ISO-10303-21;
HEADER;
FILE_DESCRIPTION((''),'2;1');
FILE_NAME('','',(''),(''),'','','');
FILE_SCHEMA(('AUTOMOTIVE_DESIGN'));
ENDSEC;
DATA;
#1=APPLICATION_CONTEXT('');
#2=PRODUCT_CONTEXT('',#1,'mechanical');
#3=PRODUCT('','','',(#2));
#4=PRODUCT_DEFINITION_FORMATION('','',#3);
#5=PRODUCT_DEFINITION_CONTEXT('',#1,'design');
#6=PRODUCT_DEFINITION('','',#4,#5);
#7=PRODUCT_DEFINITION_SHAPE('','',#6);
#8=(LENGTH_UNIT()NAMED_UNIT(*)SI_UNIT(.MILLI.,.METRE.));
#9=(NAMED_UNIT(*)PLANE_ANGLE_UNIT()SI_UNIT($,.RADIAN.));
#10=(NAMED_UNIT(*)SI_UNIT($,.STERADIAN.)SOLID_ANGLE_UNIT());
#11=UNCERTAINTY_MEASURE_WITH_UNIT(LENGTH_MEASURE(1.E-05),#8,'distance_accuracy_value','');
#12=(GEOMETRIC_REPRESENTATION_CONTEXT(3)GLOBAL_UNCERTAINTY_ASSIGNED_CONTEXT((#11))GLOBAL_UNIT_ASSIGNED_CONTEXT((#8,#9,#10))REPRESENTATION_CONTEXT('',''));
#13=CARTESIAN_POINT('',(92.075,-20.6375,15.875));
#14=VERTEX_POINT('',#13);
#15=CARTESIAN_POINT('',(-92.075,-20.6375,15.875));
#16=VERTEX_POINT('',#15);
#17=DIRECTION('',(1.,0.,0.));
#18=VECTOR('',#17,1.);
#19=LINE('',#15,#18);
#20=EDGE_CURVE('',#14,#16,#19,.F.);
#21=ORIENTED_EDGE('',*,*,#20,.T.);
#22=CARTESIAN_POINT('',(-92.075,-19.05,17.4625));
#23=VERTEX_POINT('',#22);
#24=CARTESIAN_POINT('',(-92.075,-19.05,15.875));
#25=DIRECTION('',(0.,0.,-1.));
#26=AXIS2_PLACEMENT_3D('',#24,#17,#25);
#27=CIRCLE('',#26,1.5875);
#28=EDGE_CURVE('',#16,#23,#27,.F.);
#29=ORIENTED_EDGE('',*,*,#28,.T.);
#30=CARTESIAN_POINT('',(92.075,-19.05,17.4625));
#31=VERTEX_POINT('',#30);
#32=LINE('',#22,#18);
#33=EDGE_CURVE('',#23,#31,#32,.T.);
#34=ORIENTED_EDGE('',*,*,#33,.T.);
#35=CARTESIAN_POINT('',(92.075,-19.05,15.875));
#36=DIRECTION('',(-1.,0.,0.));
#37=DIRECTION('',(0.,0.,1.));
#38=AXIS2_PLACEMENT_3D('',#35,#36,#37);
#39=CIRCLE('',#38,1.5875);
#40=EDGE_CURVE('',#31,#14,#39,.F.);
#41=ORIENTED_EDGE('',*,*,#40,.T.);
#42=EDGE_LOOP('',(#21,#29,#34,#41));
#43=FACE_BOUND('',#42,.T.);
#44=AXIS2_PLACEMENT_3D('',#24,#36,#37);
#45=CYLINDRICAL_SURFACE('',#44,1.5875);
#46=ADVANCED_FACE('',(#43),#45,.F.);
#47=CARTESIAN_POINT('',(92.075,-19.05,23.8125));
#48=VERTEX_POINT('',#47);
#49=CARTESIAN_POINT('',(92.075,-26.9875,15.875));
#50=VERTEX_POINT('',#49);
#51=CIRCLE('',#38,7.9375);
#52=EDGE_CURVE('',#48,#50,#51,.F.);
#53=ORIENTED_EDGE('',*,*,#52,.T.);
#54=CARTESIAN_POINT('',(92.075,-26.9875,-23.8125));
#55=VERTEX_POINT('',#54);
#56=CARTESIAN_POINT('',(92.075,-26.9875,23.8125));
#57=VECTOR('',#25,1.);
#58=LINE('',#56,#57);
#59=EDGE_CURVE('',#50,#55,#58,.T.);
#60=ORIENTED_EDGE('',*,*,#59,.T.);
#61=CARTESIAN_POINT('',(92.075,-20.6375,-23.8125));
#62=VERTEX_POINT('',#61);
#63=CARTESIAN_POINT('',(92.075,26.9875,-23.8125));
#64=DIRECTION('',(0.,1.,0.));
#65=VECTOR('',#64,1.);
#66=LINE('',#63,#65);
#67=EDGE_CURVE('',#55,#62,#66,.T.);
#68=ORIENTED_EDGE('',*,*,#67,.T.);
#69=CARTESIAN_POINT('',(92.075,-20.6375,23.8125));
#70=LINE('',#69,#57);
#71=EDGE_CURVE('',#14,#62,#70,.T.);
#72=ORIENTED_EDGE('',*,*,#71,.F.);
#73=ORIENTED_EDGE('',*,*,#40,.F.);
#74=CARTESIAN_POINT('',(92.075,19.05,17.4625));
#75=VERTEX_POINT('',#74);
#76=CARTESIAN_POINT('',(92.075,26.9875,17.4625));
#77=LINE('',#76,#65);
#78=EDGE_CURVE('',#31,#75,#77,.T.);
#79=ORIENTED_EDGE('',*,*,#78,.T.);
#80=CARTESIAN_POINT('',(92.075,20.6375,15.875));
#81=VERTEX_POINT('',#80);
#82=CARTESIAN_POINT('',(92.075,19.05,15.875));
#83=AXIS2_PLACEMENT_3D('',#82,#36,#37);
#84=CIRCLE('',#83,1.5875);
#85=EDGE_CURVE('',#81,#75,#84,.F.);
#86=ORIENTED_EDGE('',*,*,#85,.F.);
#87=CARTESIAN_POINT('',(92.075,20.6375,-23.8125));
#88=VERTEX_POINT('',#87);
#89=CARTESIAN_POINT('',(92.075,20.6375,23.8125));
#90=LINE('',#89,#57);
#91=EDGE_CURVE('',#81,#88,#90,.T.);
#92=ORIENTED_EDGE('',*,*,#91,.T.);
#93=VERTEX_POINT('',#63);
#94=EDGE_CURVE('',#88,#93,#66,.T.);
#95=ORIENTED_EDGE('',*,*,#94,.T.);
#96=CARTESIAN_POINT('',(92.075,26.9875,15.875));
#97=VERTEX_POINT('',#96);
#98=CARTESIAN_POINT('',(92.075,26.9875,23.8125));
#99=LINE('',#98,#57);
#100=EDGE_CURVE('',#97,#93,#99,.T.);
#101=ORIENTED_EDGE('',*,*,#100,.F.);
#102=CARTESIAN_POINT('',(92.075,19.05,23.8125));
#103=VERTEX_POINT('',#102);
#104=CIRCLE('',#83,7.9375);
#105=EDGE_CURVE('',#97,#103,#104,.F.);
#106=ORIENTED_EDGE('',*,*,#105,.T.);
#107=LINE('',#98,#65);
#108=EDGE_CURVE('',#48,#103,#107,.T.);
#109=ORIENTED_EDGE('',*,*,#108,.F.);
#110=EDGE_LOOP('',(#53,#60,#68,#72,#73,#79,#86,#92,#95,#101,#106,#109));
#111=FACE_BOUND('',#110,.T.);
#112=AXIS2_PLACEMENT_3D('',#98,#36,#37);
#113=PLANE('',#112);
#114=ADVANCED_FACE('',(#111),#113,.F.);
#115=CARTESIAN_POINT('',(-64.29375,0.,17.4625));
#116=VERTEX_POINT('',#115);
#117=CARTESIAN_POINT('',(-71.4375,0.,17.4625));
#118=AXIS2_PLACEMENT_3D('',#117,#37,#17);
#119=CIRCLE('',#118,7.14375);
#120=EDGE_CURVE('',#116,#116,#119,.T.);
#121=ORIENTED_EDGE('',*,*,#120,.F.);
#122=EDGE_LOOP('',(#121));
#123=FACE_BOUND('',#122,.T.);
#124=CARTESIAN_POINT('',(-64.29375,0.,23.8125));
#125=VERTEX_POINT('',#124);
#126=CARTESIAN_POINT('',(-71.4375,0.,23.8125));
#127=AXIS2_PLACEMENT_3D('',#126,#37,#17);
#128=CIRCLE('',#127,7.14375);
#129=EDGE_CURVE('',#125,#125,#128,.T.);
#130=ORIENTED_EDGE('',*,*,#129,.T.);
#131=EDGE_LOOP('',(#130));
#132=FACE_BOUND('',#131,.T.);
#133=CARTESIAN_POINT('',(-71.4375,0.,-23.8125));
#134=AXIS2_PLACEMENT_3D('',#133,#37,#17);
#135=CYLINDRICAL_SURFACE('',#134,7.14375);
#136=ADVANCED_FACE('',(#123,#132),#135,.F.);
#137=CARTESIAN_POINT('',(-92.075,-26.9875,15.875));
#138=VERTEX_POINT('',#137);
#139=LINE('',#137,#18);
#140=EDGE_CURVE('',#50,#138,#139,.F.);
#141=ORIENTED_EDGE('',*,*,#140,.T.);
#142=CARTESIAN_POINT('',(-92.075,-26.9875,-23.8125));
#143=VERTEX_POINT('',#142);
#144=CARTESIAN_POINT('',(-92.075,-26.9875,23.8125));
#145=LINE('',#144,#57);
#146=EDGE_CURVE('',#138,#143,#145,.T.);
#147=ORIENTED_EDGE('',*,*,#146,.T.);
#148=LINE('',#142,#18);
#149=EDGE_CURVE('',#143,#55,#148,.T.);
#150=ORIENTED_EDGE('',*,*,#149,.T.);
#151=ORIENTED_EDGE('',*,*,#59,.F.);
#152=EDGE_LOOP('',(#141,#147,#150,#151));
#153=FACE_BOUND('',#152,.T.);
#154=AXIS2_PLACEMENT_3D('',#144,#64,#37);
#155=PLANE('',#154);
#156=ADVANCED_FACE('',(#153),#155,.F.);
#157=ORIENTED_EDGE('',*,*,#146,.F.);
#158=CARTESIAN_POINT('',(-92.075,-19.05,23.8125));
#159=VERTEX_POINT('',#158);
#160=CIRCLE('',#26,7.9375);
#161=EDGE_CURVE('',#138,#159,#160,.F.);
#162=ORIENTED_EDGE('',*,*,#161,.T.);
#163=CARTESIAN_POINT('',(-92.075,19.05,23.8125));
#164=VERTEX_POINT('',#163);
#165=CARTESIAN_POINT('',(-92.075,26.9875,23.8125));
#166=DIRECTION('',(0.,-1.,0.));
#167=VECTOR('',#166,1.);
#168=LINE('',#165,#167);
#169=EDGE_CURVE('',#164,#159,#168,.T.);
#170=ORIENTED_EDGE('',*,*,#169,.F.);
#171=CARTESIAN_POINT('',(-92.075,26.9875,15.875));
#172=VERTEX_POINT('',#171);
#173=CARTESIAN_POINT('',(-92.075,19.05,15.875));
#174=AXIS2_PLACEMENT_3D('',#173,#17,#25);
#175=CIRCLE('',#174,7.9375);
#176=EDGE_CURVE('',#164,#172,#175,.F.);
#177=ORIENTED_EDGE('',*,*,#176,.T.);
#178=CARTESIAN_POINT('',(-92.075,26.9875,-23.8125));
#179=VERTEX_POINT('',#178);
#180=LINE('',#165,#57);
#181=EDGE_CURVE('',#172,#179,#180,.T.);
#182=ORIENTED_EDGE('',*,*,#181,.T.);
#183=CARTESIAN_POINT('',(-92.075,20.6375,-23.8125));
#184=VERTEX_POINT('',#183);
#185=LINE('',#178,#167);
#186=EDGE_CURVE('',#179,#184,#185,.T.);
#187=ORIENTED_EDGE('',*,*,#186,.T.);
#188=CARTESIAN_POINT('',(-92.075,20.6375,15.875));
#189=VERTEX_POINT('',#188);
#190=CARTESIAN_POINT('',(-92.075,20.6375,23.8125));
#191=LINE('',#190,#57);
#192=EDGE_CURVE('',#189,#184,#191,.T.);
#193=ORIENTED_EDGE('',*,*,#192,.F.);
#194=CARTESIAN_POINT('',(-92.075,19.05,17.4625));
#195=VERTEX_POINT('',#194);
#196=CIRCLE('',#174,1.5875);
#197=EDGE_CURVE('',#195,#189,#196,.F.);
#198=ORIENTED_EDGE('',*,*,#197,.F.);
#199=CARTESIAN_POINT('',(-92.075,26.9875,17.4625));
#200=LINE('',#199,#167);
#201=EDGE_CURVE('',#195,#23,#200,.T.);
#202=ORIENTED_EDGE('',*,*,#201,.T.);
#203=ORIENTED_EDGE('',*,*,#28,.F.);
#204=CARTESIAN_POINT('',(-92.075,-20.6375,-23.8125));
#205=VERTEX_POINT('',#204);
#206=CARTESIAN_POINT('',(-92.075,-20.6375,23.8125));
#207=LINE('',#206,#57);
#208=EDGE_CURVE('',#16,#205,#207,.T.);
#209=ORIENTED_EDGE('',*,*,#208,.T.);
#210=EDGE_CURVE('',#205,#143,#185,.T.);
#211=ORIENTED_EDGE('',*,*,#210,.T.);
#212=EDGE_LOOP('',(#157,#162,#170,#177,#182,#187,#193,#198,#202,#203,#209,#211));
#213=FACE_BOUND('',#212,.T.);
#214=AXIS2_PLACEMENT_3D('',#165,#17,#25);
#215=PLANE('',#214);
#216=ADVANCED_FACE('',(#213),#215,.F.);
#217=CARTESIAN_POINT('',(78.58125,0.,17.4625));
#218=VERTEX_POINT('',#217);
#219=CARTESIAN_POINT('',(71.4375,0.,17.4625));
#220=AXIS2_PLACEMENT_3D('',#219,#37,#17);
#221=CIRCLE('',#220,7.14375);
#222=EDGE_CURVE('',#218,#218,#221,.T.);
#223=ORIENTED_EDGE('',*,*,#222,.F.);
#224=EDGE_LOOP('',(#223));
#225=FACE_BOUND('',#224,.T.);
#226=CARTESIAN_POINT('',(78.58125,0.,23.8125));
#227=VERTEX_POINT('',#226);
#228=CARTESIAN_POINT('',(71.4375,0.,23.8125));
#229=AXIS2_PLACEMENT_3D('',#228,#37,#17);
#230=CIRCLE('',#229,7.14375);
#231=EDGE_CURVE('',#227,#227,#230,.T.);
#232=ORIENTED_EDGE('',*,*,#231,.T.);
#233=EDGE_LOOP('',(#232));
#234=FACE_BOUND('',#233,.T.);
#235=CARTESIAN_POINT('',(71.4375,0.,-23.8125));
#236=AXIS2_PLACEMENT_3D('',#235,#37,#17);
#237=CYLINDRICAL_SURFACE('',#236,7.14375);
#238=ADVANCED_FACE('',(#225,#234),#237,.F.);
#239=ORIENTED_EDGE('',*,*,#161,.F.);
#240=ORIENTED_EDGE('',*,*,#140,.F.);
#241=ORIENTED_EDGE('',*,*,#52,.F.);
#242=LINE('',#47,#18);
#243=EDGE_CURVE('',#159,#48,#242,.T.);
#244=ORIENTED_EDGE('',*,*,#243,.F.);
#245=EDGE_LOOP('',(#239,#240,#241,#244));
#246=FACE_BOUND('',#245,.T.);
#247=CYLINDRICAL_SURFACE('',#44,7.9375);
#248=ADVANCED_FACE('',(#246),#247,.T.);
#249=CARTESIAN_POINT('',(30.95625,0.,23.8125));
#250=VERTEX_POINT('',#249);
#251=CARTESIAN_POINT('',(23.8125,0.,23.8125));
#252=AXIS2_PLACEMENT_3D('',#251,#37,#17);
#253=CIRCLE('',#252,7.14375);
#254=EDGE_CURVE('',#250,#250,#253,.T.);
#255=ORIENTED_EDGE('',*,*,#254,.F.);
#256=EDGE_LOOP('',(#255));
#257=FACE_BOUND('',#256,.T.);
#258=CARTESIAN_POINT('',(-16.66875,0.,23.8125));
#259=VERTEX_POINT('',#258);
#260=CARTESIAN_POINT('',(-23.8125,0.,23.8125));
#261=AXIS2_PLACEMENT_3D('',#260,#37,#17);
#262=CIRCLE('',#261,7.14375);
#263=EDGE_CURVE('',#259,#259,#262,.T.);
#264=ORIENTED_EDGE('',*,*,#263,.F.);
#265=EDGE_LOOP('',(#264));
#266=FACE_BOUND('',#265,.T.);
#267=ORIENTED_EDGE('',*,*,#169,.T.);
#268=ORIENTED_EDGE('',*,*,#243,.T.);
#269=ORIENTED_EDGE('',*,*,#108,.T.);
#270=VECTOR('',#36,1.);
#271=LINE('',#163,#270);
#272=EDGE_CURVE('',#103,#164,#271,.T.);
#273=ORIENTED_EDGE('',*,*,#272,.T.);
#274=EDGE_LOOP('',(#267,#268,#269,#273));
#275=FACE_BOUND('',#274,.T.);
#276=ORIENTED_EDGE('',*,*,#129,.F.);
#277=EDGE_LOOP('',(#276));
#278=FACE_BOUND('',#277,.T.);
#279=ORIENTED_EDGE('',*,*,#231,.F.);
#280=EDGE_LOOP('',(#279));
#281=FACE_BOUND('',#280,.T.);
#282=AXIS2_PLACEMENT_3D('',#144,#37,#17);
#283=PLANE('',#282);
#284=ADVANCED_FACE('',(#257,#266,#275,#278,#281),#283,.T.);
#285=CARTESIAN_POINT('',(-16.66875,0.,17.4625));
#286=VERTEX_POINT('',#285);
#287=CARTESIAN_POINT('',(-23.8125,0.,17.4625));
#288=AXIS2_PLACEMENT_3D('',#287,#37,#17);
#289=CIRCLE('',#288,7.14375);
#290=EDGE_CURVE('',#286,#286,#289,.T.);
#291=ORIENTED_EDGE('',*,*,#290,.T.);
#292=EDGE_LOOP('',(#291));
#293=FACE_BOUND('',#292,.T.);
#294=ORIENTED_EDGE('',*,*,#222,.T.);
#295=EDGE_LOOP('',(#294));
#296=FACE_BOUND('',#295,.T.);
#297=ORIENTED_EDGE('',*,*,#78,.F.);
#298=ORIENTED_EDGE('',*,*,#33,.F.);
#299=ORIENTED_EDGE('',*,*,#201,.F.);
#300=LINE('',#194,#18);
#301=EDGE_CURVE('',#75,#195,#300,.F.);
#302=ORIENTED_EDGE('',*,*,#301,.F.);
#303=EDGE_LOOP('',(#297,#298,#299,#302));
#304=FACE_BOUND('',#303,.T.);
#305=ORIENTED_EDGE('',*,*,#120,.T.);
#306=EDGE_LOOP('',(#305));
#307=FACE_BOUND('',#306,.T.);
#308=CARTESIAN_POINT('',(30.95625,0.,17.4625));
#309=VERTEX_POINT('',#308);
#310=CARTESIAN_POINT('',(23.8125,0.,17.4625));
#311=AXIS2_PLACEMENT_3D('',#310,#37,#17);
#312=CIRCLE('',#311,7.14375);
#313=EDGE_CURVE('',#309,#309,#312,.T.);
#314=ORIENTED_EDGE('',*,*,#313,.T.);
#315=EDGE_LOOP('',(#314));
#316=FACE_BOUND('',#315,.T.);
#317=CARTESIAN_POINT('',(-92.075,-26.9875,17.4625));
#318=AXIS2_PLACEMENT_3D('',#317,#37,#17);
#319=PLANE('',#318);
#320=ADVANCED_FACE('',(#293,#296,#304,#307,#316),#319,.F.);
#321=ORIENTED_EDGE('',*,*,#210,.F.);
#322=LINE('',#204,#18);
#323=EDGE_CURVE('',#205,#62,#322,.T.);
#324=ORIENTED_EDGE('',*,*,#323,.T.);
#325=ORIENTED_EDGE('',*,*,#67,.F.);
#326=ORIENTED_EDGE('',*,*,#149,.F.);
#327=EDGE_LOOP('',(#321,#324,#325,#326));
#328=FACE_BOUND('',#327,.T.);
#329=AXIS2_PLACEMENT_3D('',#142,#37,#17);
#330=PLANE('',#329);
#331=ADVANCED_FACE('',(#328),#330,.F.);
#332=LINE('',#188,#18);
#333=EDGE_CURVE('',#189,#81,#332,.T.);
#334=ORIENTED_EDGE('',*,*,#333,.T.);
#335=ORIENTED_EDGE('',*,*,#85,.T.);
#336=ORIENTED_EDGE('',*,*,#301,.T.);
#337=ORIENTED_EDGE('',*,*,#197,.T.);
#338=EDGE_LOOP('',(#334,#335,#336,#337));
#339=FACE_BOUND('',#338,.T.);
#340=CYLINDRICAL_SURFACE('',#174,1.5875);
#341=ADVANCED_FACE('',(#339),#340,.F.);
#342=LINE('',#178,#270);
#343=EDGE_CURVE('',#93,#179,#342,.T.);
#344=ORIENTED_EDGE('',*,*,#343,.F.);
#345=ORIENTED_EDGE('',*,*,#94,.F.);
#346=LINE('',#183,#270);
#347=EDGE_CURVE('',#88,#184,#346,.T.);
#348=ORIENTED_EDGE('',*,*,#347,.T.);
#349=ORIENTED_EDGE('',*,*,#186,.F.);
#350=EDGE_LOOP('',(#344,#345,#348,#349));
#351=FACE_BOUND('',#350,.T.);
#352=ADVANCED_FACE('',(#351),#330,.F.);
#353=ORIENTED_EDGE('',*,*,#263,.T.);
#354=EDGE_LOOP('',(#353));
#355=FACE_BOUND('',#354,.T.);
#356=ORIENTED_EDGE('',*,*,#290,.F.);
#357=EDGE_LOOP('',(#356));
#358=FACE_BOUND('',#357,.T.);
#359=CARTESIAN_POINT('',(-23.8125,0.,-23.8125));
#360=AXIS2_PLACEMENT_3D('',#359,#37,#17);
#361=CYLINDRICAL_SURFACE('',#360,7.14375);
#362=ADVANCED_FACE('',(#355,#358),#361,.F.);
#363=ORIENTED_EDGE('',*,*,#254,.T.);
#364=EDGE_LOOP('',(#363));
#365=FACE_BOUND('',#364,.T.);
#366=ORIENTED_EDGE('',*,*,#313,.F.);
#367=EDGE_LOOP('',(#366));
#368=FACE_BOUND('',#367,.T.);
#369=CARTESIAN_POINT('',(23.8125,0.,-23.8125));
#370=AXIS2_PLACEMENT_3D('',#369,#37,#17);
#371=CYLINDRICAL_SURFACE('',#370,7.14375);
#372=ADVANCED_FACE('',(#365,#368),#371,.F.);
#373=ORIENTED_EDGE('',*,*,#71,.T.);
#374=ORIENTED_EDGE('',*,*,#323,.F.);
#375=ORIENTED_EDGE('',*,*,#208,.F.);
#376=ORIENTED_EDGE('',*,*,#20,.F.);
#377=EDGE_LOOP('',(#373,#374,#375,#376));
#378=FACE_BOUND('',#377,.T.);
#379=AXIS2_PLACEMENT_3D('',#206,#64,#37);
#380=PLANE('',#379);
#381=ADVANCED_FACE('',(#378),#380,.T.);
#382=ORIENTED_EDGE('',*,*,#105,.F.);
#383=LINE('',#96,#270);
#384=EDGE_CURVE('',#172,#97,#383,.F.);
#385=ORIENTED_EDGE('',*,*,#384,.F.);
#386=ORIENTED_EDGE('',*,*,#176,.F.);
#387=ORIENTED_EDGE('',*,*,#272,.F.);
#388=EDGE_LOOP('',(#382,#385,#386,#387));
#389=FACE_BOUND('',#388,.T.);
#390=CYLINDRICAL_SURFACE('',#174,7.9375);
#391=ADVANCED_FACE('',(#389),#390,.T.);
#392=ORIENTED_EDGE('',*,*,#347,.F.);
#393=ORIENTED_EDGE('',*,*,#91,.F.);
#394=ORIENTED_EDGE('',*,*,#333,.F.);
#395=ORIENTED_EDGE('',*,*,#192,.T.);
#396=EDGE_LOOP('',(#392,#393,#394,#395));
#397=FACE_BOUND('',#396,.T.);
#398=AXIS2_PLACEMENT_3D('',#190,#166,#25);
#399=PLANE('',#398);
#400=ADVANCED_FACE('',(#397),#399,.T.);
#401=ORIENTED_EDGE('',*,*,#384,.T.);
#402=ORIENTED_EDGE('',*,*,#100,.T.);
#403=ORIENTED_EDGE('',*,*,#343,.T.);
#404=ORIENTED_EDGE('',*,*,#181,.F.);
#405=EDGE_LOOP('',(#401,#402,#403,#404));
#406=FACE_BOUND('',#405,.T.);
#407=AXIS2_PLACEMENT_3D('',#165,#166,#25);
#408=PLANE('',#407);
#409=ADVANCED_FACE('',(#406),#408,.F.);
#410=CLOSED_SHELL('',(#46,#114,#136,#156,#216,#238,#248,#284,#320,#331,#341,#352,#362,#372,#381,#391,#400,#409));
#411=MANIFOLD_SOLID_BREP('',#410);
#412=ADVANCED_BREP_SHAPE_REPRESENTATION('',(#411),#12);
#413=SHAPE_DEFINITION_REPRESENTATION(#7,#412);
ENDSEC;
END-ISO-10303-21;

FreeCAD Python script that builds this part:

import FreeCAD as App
import Part
import Sketcher
Q = App.Units.Quantity


def edges_at(feature, points):
    """Names of the edges that pass closest to the given points."""
    edges = feature.Shape.Edges
    near = lambda p: min(range(len(edges)), key=lambda i: edges[i].distToShape(Part.Vertex(*p))[0])
    return sorted({f"Edge{near(p) + 1}" for p in points})


def faces_at(feature, points):
    """Names of the faces that lie closest to the given points."""
    faces = feature.Shape.Faces
    near = lambda p: min(range(len(faces)), key=lambda i: faces[i].distToShape(Part.Vertex(*p))[0])
    return sorted({f"Face{near(p) + 1}" for p in points})

doc = App.newDocument("Part")
body = doc.addObject("PartDesign::Body", "Body")

sketch1 = body.newObject("Sketcher::SketchObject", "Sketch")
sketch1.AttachmentSupport = (doc.getObject("XY_Plane"), [""])
sketch1.MapMode = "FlatFace"
sketch1.addGeometry(Part.LineSegment(App.Vector(-92, 27, 0), App.Vector(-92, -27, 0)), False)
sketch1.addGeometry(Part.LineSegment(App.Vector(-92, -27, 0), App.Vector(92, -27, 0)), False)
sketch1.addGeometry(Part.LineSegment(App.Vector(92, -27, 0), App.Vector(92, 27, 0)), False)
sketch1.addGeometry(Part.LineSegment(App.Vector(92, 27, 0), App.Vector(-92, 27, 0)), False)
sketch1.addConstraint(Sketcher.Constraint("Coincident", 0, 2, 1, 1))
sketch1.addConstraint(Sketcher.Constraint("Coincident", 1, 2, 2, 1))
sketch1.addConstraint(Sketcher.Constraint("Coincident", 2, 2, 3, 1))
sketch1.addConstraint(Sketcher.Constraint("Coincident", 3, 2, 0, 1))
sketch1.addConstraint(Sketcher.Constraint("Vertical", 0))
sketch1.addConstraint(Sketcher.Constraint("Horizontal", 1))
sketch1.addConstraint(Sketcher.Constraint("Vertical", 2))
sketch1.addConstraint(Sketcher.Constraint("Horizontal", 3))
sketch1.addConstraint(Sketcher.Constraint("Symmetric", 0, 2, 2, 2, -1, 1))
sketch1.addConstraint(Sketcher.Constraint("DistanceX", 1, 1, 1, 2, Q("7.25 in")))
sketch1.addConstraint(Sketcher.Constraint("DistanceY", 0, 2, 0, 1, Q("2.125 in")))
pad1 = body.newObject("PartDesign::Pad", "Pad")
pad1.Profile = sketch1
pad1.Length = Q("1.875 in")
pad1.Midplane = True
doc.recompute()

fillet = body.newObject("PartDesign::Fillet", "Fillet")
fillet.Base = (pad1, edges_at(pad1, [(0, 26.988, 23.812), (0, -26.988, 23.812)]))
fillet.Radius = Q("0.3125 in")
doc.recompute()

thickness = body.newObject("PartDesign::Thickness", "Thickness")
thickness.Base = (fillet, faces_at(fillet, [(0, 0, -23.812), (92.075, 0, 0), (-92.075, 0, 0)]))
thickness.Value = Q("0.25 in")
thickness.Reversed = True
thickness.Join = "Intersection"

sketch2 = body.newObject("Sketcher::SketchObject", "Sketch001")
sketch2.AttachmentSupport = (doc.getObject("XY_Plane"), [""])
sketch2.MapMode = "FlatFace"
sketch2.AttachmentOffset = App.Placement(App.Vector(0, 0, 0.9375 * 25.4), App.Rotation())
sketch2.addGeometry(Part.Circle(App.Vector(-71, 0, 0), App.Vector(0, 0, 1), 7), False)
sketch2.addGeometry(Part.Circle(App.Vector(-24, 0, 0), App.Vector(0, 0, 1), 7), False)
sketch2.addGeometry(Part.Circle(App.Vector(24, 0, 0), App.Vector(0, 0, 1), 7), False)
sketch2.addGeometry(Part.Circle(App.Vector(71, 0, 0), App.Vector(0, 0, 1), 7), False)
sketch2.addConstraint(Sketcher.Constraint("Equal", 0, 1))
sketch2.addConstraint(Sketcher.Constraint("Equal", 1, 2))
sketch2.addConstraint(Sketcher.Constraint("Equal", 2, 3))
sketch2.addConstraint(Sketcher.Constraint("Symmetric", 1, 3, 2, 3, -1, 1))
sketch2.addConstraint(Sketcher.Constraint("Symmetric", 0, 3, 3, 3, -1, 1))
sketch2.addConstraint(Sketcher.Constraint("PointOnObject", 0, 3, -1))
sketch2.addConstraint(Sketcher.Constraint("PointOnObject", 1, 3, -1))
sketch2.addConstraint(Sketcher.Constraint("Diameter", 0, Q("0.5625 in")))
sketch2.addConstraint(Sketcher.Constraint("DistanceX", 0, 3, 2, 3, Q("3.75 in")))
sketch2.addConstraint(Sketcher.Constraint("DistanceX", 0, 3, -1, 1, Q("2.8125 in")))
pocket1 = body.newObject("PartDesign::Pocket", "Pocket")
pocket1.Profile = sketch2
pocket1.Length = Q("1.875 in")

doc.recompute()
